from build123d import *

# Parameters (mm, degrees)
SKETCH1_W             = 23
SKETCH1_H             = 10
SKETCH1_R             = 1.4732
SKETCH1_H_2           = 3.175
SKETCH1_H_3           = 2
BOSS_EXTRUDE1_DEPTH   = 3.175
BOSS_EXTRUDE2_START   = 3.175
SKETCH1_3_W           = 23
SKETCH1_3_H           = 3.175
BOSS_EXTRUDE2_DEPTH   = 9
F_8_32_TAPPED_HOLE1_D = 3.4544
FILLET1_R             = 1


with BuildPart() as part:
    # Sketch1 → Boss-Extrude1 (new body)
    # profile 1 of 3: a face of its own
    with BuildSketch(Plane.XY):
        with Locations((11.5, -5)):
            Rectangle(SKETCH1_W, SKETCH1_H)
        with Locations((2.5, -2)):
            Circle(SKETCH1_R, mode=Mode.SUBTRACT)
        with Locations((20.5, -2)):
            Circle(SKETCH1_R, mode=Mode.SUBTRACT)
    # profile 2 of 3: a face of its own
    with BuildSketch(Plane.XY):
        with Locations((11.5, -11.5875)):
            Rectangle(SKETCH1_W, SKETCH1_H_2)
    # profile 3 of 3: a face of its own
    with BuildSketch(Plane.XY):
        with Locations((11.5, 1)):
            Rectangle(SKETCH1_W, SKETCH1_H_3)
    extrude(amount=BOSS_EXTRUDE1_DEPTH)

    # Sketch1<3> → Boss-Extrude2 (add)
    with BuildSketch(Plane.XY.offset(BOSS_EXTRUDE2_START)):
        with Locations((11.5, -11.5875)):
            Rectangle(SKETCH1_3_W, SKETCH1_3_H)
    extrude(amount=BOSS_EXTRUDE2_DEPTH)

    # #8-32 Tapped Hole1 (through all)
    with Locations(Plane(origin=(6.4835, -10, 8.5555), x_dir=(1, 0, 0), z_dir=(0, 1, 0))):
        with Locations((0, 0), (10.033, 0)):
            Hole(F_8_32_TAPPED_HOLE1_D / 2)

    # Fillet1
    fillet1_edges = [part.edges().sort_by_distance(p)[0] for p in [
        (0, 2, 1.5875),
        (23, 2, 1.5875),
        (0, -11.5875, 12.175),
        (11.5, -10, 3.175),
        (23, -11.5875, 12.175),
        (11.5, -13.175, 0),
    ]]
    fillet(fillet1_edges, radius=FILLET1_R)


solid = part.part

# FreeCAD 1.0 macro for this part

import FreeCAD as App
import Part
import Sketcher

V = App.Vector
Q = App.Units.Quantity


def edges_at(feature, points):
    """Names of the edges that pass closest to the given points."""
    edges = feature.Shape.Edges
    near = lambda p: min(range(len(edges)), key=lambda i: edges[i].distToShape(Part.Vertex(*p))[0])
    return sorted({f"Edge{near(p) + 1}" for p in points})


def add_polygon(sketch, points):
    """Adds a closed chain of lines whose ends are joined by coincident constraints."""
    first, n = sketch.GeometryCount, len(points)
    for a, b in zip(points, points[1:] + points[:1]):
        sketch.addGeometry(Part.LineSegment(App.Vector(*a, 0), App.Vector(*b, 0)), False)
    for i in range(n):
        sketch.addConstraint(Sketcher.Constraint("Coincident", first + i, 2, first + (i + 1) % n, 1))

doc = App.newDocument("Part")
body = doc.addObject("PartDesign::Body", "Body")

# Sketch on XY plane
sketch1 = body.newObject("Sketcher::SketchObject", "Sketch")
sketch1.AttachmentSupport = (doc.getObject("XY_Plane"), [""])
sketch1.MapMode = "FlatFace"
add_polygon(sketch1, [(0, -13.2), (23, -13.2), (23, 2), (0, 2)])  # lines 0-3
sketch1.addGeometry(Part.Circle(V(2.5, -2, 0), V(0, 0, 1), 1.5), False)  # 4
sketch1.addGeometry(Part.Circle(V(20.5, -2, 0), V(0, 0, 1), 1.5), False)  # 5
sketch1.addConstraint([
    Sketcher.Constraint("Horizontal", 0),
    Sketcher.Constraint("Vertical", 1),
    Sketcher.Constraint("Horizontal", 2),
    Sketcher.Constraint("Vertical", 3),
    Sketcher.Constraint("Equal", 4, 5),
    Sketcher.Constraint("PointOnObject", 2, 2, -2),
    Sketcher.Constraint("Horizontal", 4, 3, 5, 3),
    Sketcher.Constraint("DistanceX", 0, 1, 0, 2, Q("23 mm")),
    Sketcher.Constraint("DistanceY", 4, 3, -1, 1, Q("2 mm")),
    Sketcher.Constraint("DistanceY", -1, 1, 1, 2, Q("2 mm")),
    Sketcher.Constraint("DistanceX", 4, 3, 5, 3, Q("18 mm")),
    Sketcher.Constraint("Diameter", 4, Q("2.9464 mm")),
    Sketcher.Constraint("DistanceX", -1, 1, 4, 3, Q("2.5 mm")),
    Sketcher.Constraint("DistanceY", 1, 1, 1, 2, Q("15.175 mm")),
])
pad1 = body.newObject("PartDesign::Pad", "Pad")
pad1.Profile = sketch1
pad1.Length = 3.175

# Sketch on XY plane
sketch2 = body.newObject("Sketcher::SketchObject", "Sketch001")
sketch2.AttachmentSupport = (doc.getObject("XY_Plane"), [""])
sketch2.MapMode = "FlatFace"
sketch2.AttachmentOffset = App.Placement(V(0, 0, 3.175), App.Rotation())
add_polygon(sketch2, [(0, -10), (0, -13.2), (23, -13.2), (23, -10)])  # lines 0-3
sketch2.addConstraint([
    Sketcher.Constraint("Vertical", 0),
    Sketcher.Constraint("Horizontal", 1),
    Sketcher.Constraint("Vertical", 2),
    Sketcher.Constraint("Horizontal", 3),
    Sketcher.Constraint("PointOnObject", 0, 2, -2),
    Sketcher.Constraint("DistanceX", 1, 1, 1, 2, Q("23 mm")),
    Sketcher.Constraint("DistanceY", 2, 2, -1, 1, Q("10 mm")),
    Sketcher.Constraint("DistanceY", 0, 2, 0, 1, Q("3.175 mm")),
])
pad2 = body.newObject("PartDesign::Pad", "Pad001")
pad2.Profile = sketch2
pad2.Length = 9

# Sketch on XZ plane
sketch3 = body.newObject("Sketcher::SketchObject", "Sketch002")
sketch3.AttachmentSupport = (doc.getObject("XZ_Plane"), [""])
sketch3.MapMode = "FlatFace"
sketch3.AttachmentOffset = App.Placement(V(0, 0, 10), App.Rotation())
sketch3.addGeometry([
    Part.Circle(V(6.5, 8.6, 0), V(0, 0, 1), 1.7),
    Part.Circle(V(16.5, 8.6, 0), V(0, 0, 1), 1.7),
], False)
sketch3.addConstraint([
    Sketcher.Constraint("Equal", 0, 1),
    Sketcher.Constraint("Horizontal", 0, 3, 1, 3),
    Sketcher.Constraint("Diameter", 0, Q("3.4544 mm")),
    Sketcher.Constraint("DistanceX", 0, 3, 1, 3, Q("10.033 mm")),
    Sketcher.Constraint("DistanceX", -1, 1, 0, 3, Q("6.4835 mm")),
    Sketcher.Constraint("DistanceY", -1, 1, 0, 3, Q("8.5555 mm")),
])
doc.recompute()
hole = body.newObject("PartDesign::Hole", "Hole")
hole.Profile = sketch3
hole.ThreadType = "None"
hole.Diameter = 3.4544
hole.DepthType = "ThroughAll"
hole.Reversed = True
doc.recompute()

fillet = body.newObject("PartDesign::Fillet", "Fillet")
fillet.Base = (hole, edges_at(hole, [
    (0, 2, 1.587),
    (23, 2, 1.587),
    (0, -11.588, 12.175),
    (11.5, -10, 3.175),
    (23, -11.588, 12.175),
    (11.5, -13.175, 0),
]))
fillet.Radius = 1

doc.recompute()
